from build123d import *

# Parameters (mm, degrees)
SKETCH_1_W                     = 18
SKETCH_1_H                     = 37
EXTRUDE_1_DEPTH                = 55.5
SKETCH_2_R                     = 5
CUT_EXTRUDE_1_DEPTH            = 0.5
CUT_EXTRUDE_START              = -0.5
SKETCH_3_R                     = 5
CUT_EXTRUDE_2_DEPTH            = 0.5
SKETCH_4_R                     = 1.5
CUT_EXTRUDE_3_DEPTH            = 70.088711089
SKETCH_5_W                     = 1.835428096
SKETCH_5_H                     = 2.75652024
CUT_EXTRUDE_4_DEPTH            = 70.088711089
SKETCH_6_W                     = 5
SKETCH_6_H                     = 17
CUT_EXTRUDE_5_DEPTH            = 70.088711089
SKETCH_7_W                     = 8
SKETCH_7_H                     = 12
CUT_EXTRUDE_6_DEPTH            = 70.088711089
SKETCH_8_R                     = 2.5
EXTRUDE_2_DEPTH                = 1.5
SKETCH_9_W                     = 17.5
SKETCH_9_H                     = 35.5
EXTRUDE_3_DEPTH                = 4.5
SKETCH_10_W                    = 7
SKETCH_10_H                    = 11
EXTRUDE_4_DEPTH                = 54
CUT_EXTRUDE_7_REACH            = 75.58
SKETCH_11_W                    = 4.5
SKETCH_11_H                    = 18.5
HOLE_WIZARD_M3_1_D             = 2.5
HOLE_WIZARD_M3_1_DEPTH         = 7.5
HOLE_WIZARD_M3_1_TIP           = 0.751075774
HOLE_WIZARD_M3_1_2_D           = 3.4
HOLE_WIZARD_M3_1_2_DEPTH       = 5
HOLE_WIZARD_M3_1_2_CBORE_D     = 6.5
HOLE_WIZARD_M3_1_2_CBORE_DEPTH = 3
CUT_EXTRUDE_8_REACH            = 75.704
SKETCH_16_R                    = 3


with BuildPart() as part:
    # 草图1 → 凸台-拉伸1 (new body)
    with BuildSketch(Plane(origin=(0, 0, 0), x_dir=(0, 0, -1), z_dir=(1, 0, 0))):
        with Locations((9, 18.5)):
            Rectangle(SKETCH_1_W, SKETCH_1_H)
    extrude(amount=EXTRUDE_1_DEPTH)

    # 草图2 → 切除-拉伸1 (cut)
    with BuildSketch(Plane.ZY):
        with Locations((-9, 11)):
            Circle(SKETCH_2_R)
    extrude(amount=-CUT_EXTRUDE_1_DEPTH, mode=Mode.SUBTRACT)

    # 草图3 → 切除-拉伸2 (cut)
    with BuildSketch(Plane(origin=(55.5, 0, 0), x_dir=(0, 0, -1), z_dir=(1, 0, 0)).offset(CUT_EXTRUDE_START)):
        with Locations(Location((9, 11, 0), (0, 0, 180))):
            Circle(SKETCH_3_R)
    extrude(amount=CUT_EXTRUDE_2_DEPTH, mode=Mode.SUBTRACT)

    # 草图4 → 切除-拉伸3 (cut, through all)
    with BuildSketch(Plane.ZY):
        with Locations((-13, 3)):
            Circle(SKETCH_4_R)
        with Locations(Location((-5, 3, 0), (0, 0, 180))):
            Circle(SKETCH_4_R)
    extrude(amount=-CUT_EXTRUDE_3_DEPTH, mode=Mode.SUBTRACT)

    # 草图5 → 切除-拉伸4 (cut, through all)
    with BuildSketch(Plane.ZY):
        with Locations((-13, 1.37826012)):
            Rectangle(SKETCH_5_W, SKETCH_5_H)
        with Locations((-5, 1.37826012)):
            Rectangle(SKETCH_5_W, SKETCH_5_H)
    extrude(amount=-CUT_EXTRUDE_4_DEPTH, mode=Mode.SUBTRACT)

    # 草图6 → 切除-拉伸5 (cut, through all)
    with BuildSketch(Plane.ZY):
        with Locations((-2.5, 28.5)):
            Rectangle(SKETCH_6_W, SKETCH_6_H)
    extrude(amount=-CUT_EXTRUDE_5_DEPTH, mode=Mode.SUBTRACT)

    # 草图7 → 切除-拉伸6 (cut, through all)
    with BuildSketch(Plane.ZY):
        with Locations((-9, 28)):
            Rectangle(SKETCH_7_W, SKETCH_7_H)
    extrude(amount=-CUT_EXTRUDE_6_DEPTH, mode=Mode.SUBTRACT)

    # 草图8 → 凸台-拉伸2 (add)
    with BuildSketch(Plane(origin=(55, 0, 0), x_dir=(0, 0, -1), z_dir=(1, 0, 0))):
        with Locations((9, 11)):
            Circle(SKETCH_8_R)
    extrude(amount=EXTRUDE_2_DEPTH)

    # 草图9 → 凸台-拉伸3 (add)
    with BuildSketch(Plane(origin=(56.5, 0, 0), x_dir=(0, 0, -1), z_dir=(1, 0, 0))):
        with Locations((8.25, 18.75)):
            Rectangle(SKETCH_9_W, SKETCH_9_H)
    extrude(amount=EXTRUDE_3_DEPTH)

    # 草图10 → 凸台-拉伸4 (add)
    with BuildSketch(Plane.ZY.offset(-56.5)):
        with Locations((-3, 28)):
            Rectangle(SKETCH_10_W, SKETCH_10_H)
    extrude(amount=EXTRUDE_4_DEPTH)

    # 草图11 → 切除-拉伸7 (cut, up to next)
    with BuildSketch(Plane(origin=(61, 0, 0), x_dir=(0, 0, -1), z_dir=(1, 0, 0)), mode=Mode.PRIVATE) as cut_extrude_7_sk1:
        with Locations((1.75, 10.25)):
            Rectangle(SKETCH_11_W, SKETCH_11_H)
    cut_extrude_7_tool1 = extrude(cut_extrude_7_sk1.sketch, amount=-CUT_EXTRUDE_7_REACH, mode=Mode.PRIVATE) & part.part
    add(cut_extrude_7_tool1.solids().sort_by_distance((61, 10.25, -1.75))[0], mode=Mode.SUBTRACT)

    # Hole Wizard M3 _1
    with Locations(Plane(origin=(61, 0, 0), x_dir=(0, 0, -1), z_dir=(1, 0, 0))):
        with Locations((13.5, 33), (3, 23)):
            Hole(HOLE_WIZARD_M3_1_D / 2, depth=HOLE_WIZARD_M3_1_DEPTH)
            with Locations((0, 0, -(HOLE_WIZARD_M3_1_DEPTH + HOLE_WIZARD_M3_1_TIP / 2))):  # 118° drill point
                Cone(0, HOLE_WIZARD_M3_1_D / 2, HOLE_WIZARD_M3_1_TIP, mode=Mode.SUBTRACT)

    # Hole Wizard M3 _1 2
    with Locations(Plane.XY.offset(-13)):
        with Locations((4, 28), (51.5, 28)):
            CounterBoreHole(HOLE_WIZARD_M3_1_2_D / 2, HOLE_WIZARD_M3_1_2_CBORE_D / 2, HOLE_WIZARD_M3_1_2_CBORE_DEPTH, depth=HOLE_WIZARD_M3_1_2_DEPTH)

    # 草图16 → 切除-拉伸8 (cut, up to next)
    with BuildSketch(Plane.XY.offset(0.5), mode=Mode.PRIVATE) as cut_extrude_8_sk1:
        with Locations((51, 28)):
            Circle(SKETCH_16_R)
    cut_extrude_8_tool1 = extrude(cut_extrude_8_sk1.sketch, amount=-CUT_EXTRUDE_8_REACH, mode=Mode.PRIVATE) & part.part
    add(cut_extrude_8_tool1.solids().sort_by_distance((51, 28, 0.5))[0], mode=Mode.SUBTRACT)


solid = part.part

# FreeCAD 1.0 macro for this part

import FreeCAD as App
import Part
import Sketcher

V = App.Vector


def add_polygon(sketch, points):
    """Adds a closed chain of lines whose ends are joined by coincident constraints."""
    first, n = sketch.GeometryCount, len(points)
    for a, b in zip(points, points[1:] + points[:1]):
        sketch.addGeometry(Part.LineSegment(App.Vector(*a, 0), App.Vector(*b, 0)), False)
    for i in range(n):
        sketch.addConstraint(Sketcher.Constraint("Coincident", first + i, 2, first + (i + 1) % n, 1))

doc = App.newDocument("Part")
body = doc.addObject("PartDesign::Body", "Body")

sketch1 = body.newObject("Sketcher::SketchObject", "Sketch")
sketch1.AttachmentSupport = (doc.getObject("YZ_Plane"), [""])
sketch1.MapMode = "FlatFace"
add_polygon(sketch1, [(37, 0), (0, 0), (0, -18), (37, -18)])
sketch1.addConstraint([
    Sketcher.Constraint("Horizontal", 0),
    Sketcher.Constraint("Vertical", 1),
    Sketcher.Constraint("Horizontal", 2),
    Sketcher.Constraint("Vertical", 3),
    Sketcher.Constraint("Coincident", 0, 2, -1, 1),
    Sketcher.Constraint("DistanceX", 0, 2, 0, 1, 37.0),
    Sketcher.Constraint("DistanceY", 1, 2, 1, 1, 18.0),
])
pad1 = body.newObject("PartDesign::Pad", "Pad")
pad1.Profile = sketch1
pad1.Length = 55.5

sketch2 = body.newObject("Sketcher::SketchObject", "Sketch001")
sketch2.AttachmentSupport = (doc.getObject("YZ_Plane"), [""])
sketch2.MapMode = "FlatFace"
sketch2.addGeometry(Part.Circle(V(11, -9, 0), V(0, 0, 1), 5), False)
sketch2.addConstraint([
    Sketcher.Constraint("Diameter", 0, 10.0),
    Sketcher.Constraint("DistanceX", -1, 1, 0, 3, 11.0),
    Sketcher.Constraint("DistanceY", 0, 3, -1, 1, 9.0),
])
pocket1 = body.newObject("PartDesign::Pocket", "Pocket")
pocket1.Profile = sketch2
pocket1.Length = 0.5
pocket1.Reversed = True

sketch3 = body.newObject("Sketcher::SketchObject", "Sketch002")
sketch3.AttachmentSupport = (doc.getObject("YZ_Plane"), [""])
sketch3.MapMode = "FlatFace"
sketch3.AttachmentOffset = App.Placement(V(0, 0, 55), App.Rotation())
sketch3.addGeometry(Part.Circle(V(11, -9, 0), V(0, 0, 1), 5), False)
sketch3.addConstraint([
    Sketcher.Constraint("Diameter", 0, 10.0),
    Sketcher.Constraint("DistanceX", -1, 1, 0, 3, 11.0),
    Sketcher.Constraint("DistanceY", 0, 3, -1, 1, 9.0),
])
pocket2 = body.newObject("PartDesign::Pocket", "Pocket001")
pocket2.Profile = sketch3
pocket2.Length = 0.5
pocket2.Reversed = True

sketch4 = body.newObject("Sketcher::SketchObject", "Sketch003")
sketch4.AttachmentSupport = (doc.getObject("YZ_Plane"), [""])
sketch4.MapMode = "FlatFace"
sketch4.addGeometry([
    Part.Circle(V(3, -13, 0), V(0, 0, 1), 1.5),
    Part.Circle(V(3, -5, 0), V(0, 0, 1), 1.5),
], False)
sketch4.addConstraint([
    Sketcher.Constraint("Equal", 0, 1),
    Sketcher.Constraint("Vertical", 0, 3, 1, 3),
    Sketcher.Constraint("Diameter", 0, 3.0),
    Sketcher.Constraint("DistanceX", -1, 1, 0, 3, 3.0),
    Sketcher.Constraint("DistanceY", 0, 3, -1, 1, 13.0),
    Sketcher.Constraint("DistanceY", 1, 3, -1, 1, 5.0),
])
pocket3 = body.newObject("PartDesign::Pocket", "Pocket002")
pocket3.Profile = sketch4
pocket3.Type = "ThroughAll"
pocket3.Reversed = True

sketch5 = body.newObject("Sketcher::SketchObject", "Sketch004")
sketch5.AttachmentSupport = (doc.getObject("YZ_Plane"), [""])
sketch5.MapMode = "FlatFace"
add_polygon(sketch5, [(2.8, -13.9), (0, -13.9), (0, -12.1), (2.8, -12.1)])
add_polygon(sketch5, [(2.8, -5.9), (0, -5.9), (0, -4.1), (2.8, -4.1)])
sketch5.addConstraint([
    Sketcher.Constraint("Horizontal", 0),
    Sketcher.Constraint("Vertical", 1),
    Sketcher.Constraint("Horizontal", 2),
    Sketcher.Constraint("Vertical", 3),
    Sketcher.Constraint("Horizontal", 4),
    Sketcher.Constraint("Vertical", 5),
    Sketcher.Constraint("Horizontal", 6),
    Sketcher.Constraint("Vertical", 7),
    Sketcher.Constraint("PointOnObject", 0, 2, -2),
    Sketcher.Constraint("PointOnObject", 4, 2, -2),
    Sketcher.Constraint("Vertical", 3, 2, 6, 2),
    Sketcher.Constraint("Equal", 3, 5),
    Sketcher.Constraint("DistanceY", 0, 2, 4, 2, 8.0),
    Sketcher.Constraint("DistanceX", 0, 2, 0, 1, 2.75652),
    Sketcher.Constraint("DistanceY", 1, 1, 1, 2, 1.835428),
    Sketcher.Constraint("DistanceY", 0, 2, -1, 1, 13.917714),
])
pocket4 = body.newObject("PartDesign::Pocket", "Pocket003")
pocket4.Profile = sketch5
pocket4.Type = "ThroughAll"
pocket4.Reversed = True

sketch6 = body.newObject("Sketcher::SketchObject", "Sketch005")
sketch6.AttachmentSupport = (doc.getObject("YZ_Plane"), [""])
sketch6.MapMode = "FlatFace"
add_polygon(sketch6, [(37, -5), (20, -5), (20, 0), (37, 0)])
sketch6.addConstraint([
    Sketcher.Constraint("Horizontal", 0),
    Sketcher.Constraint("Vertical", 1),
    Sketcher.Constraint("Horizontal", 2),
    Sketcher.Constraint("Vertical", 3),
    Sketcher.Constraint("PointOnObject", 1, 2, -1),
    Sketcher.Constraint("DistanceX", 0, 2, 0, 1, 17.0),
    Sketcher.Constraint("DistanceY", 1, 1, 1, 2, 5.0),
    Sketcher.Constraint("DistanceX", -1, 1, 0, 2, 20.0),
])
pocket5 = body.newObject("PartDesign::Pocket", "Pocket004")
pocket5.Profile = sketch6
pocket5.Type = "ThroughAll"
pocket5.Reversed = True

sketch7 = body.newObject("Sketcher::SketchObject", "Sketch006")
sketch7.AttachmentSupport = (doc.getObject("YZ_Plane"), [""])
sketch7.MapMode = "FlatFace"
add_polygon(sketch7, [(34, -13), (22, -13), (22, -5), (34, -5)])
sketch7.addConstraint([
    Sketcher.Constraint("Horizontal", 0),
    Sketcher.Constraint("Vertical", 1),
    Sketcher.Constraint("Horizontal", 2),
    Sketcher.Constraint("Vertical", 3),
    Sketcher.Constraint("DistanceX", 0, 2, 0, 1, 12.0),
    Sketcher.Constraint("DistanceY", 1, 1, 1, 2, 8.0),
    Sketcher.Constraint("DistanceX", -1, 1, 0, 2, 22.0),
    Sketcher.Constraint("DistanceY", 0, 2, -1, 1, 13.0),
])
pocket6 = body.newObject("PartDesign::Pocket", "Pocket005")
pocket6.Profile = sketch7
pocket6.Type = "ThroughAll"
pocket6.Reversed = True

sketch8 = body.newObject("Sketcher::SketchObject", "Sketch007")
sketch8.AttachmentSupport = (doc.getObject("YZ_Plane"), [""])
sketch8.MapMode = "FlatFace"
sketch8.AttachmentOffset = App.Placement(V(0, 0, 55), App.Rotation())
sketch8.addGeometry(Part.Circle(V(11, -9, 0), V(0, 0, 1), 2.5), False)
sketch8.addConstraint([
    Sketcher.Constraint("Diameter", 0, 5.0),
    Sketcher.Constraint("DistanceX", -1, 1, 0, 3, 11.0),
    Sketcher.Constraint("DistanceY", 0, 3, -1, 1, 9.0),
])
pad2 = body.newObject("PartDesign::Pad", "Pad001")
pad2.Profile = sketch8
pad2.Length = 1.5

sketch9 = body.newObject("Sketcher::SketchObject", "Sketch008")
sketch9.AttachmentSupport = (doc.getObject("YZ_Plane"), [""])
sketch9.MapMode = "FlatFace"
sketch9.AttachmentOffset = App.Placement(V(0, 0, 56.5), App.Rotation())
add_polygon(sketch9, [(36, 0), (1, 0), (1, -17), (36, -17)])
sketch9.addConstraint([
    Sketcher.Constraint("Horizontal", 0),
    Sketcher.Constraint("Vertical", 1),
    Sketcher.Constraint("Horizontal", 2),
    Sketcher.Constraint("Vertical", 3),
    Sketcher.Constraint("DistanceX", 0, 2, 0, 1, 35.5),
    Sketcher.Constraint("DistanceY", 1, 2, 1, 1, 17.5),
    Sketcher.Constraint("DistanceX", -1, 1, 0, 2, 1.0),
    Sketcher.Constraint("DistanceY", 1, 2, -1, 1, 17.0),
])
pad3 = body.newObject("PartDesign::Pad", "Pad002")
pad3.Profile = sketch9
pad3.Length = 4.5

sketch10 = body.newObject("Sketcher::SketchObject", "Sketch009")
sketch10.AttachmentSupport = (doc.getObject("YZ_Plane"), [""])
sketch10.MapMode = "FlatFace"
sketch10.AttachmentOffset = App.Placement(V(0, 0, 56.5), App.Rotation())
add_polygon(sketch10, [(34, -6), (22, -6), (22, 0), (34, 0)])
sketch10.addConstraint([
    Sketcher.Constraint("Horizontal", 0),
    Sketcher.Constraint("Vertical", 1),
    Sketcher.Constraint("Horizontal", 2),
    Sketcher.Constraint("Vertical", 3),
    Sketcher.Constraint("DistanceX", 0, 2, 0, 1, 11.0),
    Sketcher.Constraint("DistanceY", 1, 1, 1, 2, 7.0),
    Sketcher.Constraint("DistanceX", -1, 1, 0, 2, 22.5),
    Sketcher.Constraint("DistanceY", 0, 2, -1, 1, 6.5),
])
pad4 = body.newObject("PartDesign::Pad", "Pad003")
pad4.Profile = sketch10
pad4.Length = 54
pad4.Reversed = True

sketch11 = body.newObject("Sketcher::SketchObject", "Sketch010")
sketch11.AttachmentSupport = (doc.getObject("YZ_Plane"), [""])
sketch11.MapMode = "FlatFace"
sketch11.AttachmentOffset = App.Placement(V(0, 0, 61), App.Rotation())
add_polygon(sketch11, [(19.5, 0.5), (1, 0.5), (1, -4), (19.5, -4)])
sketch11.addConstraint([
    Sketcher.Constraint("Horizontal", 0),
    Sketcher.Constraint("Vertical", 1),
    Sketcher.Constraint("Horizontal", 2),
    Sketcher.Constraint("Vertical", 3),
    Sketcher.Constraint("DistanceX", 0, 2, 0, 1, 18.5),
    Sketcher.Constraint("DistanceY", 1, 2, 1, 1, 4.5),
    Sketcher.Constraint("DistanceX", -1, 1, 0, 2, 1.0),
    Sketcher.Constraint("DistanceY", 1, 2, -1, 1, 4.0),
])
pocket7 = body.newObject("PartDesign::Pocket", "Pocket006")
pocket7.Profile = sketch11
pocket7.Type = "UpToFirst"

sketch12 = body.newObject("Sketcher::SketchObject", "Sketch011")
sketch12.AttachmentSupport = (doc.getObject("YZ_Plane"), [""])
sketch12.MapMode = "FlatFace"
sketch12.AttachmentOffset = App.Placement(V(0, 0, 61), App.Rotation())
sketch12.addGeometry([
    Part.Circle(V(33, -13.5, 0), V(0, 0, 1), 1.2),
    Part.Circle(V(23, -3, 0), V(0, 0, 1), 1.2),
], False)
sketch12.addConstraint([
    Sketcher.Constraint("Equal", 0, 1),
    Sketcher.Constraint("Diameter", 0, 2.5),
    Sketcher.Constraint("DistanceX", -1, 1, 0, 3, 33.0),
    Sketcher.Constraint("DistanceX", -1, 1, 1, 3, 23.0),
    Sketcher.Constraint("DistanceY", 1, 3, -1, 1, 3.0),
    Sketcher.Constraint("DistanceY", 0, 3, -1, 1, 13.5),
])
doc.recompute()
hole = body.newObject("PartDesign::Hole", "Hole")
hole.Profile = sketch12
hole.ThreadType = "None"
hole.Diameter = 2.5
hole.DepthType = "Dimension"
hole.Depth = 7.5
hole.DrillPoint = "Angled"
hole.DrillPointAngle = 118

sketch13 = body.newObject("Sketcher::SketchObject", "Sketch012")
sketch13.AttachmentSupport = (doc.getObject("XY_Plane"), [""])
sketch13.MapMode = "FlatFace"
sketch13.AttachmentOffset = App.Placement(V(0, 0, -13), App.Rotation())
sketch13.addGeometry([
    Part.Circle(V(4, 28, 0), V(0, 0, 1), 1.7),
    Part.Circle(V(51.5, 28, 0), V(0, 0, 1), 1.7),
], False)
sketch13.addConstraint([
    Sketcher.Constraint("Equal", 0, 1),
    Sketcher.Constraint("Horizontal", 0, 3, 1, 3),
    Sketcher.Constraint("Diameter", 0, 3.4),
    Sketcher.Constraint("DistanceX", -1, 1, 0, 3, 4.0),
    Sketcher.Constraint("DistanceY", -1, 1, 0, 3, 28.0),
    Sketcher.Constraint("DistanceX", -1, 1, 1, 3, 51.5),
])
doc.recompute()
hole2 = body.newObject("PartDesign::Hole", "Hole001")
hole2.Profile = sketch13
hole2.ThreadType = "None"
hole2.Diameter = 3.4
hole2.DepthType = "Dimension"
hole2.Depth = 5
hole2.DrillPoint = "Flat"
hole2.HoleCutType = "Counterbore"
hole2.HoleCutDiameter = 6.5
hole2.HoleCutDepth = 3

sketch14 = body.newObject("Sketcher::SketchObject", "Sketch013")
sketch14.AttachmentSupport = (doc.getObject("XY_Plane"), [""])
sketch14.MapMode = "FlatFace"
sketch14.AttachmentOffset = App.Placement(V(0, 0, 0.5), App.Rotation())
sketch14.addGeometry(Part.Circle(V(51, 28, 0), V(0, 0, 1), 3), False)
sketch14.addConstraint([
    Sketcher.Constraint("Diameter", 0, 6.0),
    Sketcher.Constraint("DistanceX", -1, 1, 0, 3, 51.0),
    Sketcher.Constraint("DistanceY", -1, 1, 0, 3, 28.0),
])
pocket8 = body.newObject("PartDesign::Pocket", "Pocket007")
pocket8.Profile = sketch14
pocket8.Type = "UpToFirst"

doc.recompute()
